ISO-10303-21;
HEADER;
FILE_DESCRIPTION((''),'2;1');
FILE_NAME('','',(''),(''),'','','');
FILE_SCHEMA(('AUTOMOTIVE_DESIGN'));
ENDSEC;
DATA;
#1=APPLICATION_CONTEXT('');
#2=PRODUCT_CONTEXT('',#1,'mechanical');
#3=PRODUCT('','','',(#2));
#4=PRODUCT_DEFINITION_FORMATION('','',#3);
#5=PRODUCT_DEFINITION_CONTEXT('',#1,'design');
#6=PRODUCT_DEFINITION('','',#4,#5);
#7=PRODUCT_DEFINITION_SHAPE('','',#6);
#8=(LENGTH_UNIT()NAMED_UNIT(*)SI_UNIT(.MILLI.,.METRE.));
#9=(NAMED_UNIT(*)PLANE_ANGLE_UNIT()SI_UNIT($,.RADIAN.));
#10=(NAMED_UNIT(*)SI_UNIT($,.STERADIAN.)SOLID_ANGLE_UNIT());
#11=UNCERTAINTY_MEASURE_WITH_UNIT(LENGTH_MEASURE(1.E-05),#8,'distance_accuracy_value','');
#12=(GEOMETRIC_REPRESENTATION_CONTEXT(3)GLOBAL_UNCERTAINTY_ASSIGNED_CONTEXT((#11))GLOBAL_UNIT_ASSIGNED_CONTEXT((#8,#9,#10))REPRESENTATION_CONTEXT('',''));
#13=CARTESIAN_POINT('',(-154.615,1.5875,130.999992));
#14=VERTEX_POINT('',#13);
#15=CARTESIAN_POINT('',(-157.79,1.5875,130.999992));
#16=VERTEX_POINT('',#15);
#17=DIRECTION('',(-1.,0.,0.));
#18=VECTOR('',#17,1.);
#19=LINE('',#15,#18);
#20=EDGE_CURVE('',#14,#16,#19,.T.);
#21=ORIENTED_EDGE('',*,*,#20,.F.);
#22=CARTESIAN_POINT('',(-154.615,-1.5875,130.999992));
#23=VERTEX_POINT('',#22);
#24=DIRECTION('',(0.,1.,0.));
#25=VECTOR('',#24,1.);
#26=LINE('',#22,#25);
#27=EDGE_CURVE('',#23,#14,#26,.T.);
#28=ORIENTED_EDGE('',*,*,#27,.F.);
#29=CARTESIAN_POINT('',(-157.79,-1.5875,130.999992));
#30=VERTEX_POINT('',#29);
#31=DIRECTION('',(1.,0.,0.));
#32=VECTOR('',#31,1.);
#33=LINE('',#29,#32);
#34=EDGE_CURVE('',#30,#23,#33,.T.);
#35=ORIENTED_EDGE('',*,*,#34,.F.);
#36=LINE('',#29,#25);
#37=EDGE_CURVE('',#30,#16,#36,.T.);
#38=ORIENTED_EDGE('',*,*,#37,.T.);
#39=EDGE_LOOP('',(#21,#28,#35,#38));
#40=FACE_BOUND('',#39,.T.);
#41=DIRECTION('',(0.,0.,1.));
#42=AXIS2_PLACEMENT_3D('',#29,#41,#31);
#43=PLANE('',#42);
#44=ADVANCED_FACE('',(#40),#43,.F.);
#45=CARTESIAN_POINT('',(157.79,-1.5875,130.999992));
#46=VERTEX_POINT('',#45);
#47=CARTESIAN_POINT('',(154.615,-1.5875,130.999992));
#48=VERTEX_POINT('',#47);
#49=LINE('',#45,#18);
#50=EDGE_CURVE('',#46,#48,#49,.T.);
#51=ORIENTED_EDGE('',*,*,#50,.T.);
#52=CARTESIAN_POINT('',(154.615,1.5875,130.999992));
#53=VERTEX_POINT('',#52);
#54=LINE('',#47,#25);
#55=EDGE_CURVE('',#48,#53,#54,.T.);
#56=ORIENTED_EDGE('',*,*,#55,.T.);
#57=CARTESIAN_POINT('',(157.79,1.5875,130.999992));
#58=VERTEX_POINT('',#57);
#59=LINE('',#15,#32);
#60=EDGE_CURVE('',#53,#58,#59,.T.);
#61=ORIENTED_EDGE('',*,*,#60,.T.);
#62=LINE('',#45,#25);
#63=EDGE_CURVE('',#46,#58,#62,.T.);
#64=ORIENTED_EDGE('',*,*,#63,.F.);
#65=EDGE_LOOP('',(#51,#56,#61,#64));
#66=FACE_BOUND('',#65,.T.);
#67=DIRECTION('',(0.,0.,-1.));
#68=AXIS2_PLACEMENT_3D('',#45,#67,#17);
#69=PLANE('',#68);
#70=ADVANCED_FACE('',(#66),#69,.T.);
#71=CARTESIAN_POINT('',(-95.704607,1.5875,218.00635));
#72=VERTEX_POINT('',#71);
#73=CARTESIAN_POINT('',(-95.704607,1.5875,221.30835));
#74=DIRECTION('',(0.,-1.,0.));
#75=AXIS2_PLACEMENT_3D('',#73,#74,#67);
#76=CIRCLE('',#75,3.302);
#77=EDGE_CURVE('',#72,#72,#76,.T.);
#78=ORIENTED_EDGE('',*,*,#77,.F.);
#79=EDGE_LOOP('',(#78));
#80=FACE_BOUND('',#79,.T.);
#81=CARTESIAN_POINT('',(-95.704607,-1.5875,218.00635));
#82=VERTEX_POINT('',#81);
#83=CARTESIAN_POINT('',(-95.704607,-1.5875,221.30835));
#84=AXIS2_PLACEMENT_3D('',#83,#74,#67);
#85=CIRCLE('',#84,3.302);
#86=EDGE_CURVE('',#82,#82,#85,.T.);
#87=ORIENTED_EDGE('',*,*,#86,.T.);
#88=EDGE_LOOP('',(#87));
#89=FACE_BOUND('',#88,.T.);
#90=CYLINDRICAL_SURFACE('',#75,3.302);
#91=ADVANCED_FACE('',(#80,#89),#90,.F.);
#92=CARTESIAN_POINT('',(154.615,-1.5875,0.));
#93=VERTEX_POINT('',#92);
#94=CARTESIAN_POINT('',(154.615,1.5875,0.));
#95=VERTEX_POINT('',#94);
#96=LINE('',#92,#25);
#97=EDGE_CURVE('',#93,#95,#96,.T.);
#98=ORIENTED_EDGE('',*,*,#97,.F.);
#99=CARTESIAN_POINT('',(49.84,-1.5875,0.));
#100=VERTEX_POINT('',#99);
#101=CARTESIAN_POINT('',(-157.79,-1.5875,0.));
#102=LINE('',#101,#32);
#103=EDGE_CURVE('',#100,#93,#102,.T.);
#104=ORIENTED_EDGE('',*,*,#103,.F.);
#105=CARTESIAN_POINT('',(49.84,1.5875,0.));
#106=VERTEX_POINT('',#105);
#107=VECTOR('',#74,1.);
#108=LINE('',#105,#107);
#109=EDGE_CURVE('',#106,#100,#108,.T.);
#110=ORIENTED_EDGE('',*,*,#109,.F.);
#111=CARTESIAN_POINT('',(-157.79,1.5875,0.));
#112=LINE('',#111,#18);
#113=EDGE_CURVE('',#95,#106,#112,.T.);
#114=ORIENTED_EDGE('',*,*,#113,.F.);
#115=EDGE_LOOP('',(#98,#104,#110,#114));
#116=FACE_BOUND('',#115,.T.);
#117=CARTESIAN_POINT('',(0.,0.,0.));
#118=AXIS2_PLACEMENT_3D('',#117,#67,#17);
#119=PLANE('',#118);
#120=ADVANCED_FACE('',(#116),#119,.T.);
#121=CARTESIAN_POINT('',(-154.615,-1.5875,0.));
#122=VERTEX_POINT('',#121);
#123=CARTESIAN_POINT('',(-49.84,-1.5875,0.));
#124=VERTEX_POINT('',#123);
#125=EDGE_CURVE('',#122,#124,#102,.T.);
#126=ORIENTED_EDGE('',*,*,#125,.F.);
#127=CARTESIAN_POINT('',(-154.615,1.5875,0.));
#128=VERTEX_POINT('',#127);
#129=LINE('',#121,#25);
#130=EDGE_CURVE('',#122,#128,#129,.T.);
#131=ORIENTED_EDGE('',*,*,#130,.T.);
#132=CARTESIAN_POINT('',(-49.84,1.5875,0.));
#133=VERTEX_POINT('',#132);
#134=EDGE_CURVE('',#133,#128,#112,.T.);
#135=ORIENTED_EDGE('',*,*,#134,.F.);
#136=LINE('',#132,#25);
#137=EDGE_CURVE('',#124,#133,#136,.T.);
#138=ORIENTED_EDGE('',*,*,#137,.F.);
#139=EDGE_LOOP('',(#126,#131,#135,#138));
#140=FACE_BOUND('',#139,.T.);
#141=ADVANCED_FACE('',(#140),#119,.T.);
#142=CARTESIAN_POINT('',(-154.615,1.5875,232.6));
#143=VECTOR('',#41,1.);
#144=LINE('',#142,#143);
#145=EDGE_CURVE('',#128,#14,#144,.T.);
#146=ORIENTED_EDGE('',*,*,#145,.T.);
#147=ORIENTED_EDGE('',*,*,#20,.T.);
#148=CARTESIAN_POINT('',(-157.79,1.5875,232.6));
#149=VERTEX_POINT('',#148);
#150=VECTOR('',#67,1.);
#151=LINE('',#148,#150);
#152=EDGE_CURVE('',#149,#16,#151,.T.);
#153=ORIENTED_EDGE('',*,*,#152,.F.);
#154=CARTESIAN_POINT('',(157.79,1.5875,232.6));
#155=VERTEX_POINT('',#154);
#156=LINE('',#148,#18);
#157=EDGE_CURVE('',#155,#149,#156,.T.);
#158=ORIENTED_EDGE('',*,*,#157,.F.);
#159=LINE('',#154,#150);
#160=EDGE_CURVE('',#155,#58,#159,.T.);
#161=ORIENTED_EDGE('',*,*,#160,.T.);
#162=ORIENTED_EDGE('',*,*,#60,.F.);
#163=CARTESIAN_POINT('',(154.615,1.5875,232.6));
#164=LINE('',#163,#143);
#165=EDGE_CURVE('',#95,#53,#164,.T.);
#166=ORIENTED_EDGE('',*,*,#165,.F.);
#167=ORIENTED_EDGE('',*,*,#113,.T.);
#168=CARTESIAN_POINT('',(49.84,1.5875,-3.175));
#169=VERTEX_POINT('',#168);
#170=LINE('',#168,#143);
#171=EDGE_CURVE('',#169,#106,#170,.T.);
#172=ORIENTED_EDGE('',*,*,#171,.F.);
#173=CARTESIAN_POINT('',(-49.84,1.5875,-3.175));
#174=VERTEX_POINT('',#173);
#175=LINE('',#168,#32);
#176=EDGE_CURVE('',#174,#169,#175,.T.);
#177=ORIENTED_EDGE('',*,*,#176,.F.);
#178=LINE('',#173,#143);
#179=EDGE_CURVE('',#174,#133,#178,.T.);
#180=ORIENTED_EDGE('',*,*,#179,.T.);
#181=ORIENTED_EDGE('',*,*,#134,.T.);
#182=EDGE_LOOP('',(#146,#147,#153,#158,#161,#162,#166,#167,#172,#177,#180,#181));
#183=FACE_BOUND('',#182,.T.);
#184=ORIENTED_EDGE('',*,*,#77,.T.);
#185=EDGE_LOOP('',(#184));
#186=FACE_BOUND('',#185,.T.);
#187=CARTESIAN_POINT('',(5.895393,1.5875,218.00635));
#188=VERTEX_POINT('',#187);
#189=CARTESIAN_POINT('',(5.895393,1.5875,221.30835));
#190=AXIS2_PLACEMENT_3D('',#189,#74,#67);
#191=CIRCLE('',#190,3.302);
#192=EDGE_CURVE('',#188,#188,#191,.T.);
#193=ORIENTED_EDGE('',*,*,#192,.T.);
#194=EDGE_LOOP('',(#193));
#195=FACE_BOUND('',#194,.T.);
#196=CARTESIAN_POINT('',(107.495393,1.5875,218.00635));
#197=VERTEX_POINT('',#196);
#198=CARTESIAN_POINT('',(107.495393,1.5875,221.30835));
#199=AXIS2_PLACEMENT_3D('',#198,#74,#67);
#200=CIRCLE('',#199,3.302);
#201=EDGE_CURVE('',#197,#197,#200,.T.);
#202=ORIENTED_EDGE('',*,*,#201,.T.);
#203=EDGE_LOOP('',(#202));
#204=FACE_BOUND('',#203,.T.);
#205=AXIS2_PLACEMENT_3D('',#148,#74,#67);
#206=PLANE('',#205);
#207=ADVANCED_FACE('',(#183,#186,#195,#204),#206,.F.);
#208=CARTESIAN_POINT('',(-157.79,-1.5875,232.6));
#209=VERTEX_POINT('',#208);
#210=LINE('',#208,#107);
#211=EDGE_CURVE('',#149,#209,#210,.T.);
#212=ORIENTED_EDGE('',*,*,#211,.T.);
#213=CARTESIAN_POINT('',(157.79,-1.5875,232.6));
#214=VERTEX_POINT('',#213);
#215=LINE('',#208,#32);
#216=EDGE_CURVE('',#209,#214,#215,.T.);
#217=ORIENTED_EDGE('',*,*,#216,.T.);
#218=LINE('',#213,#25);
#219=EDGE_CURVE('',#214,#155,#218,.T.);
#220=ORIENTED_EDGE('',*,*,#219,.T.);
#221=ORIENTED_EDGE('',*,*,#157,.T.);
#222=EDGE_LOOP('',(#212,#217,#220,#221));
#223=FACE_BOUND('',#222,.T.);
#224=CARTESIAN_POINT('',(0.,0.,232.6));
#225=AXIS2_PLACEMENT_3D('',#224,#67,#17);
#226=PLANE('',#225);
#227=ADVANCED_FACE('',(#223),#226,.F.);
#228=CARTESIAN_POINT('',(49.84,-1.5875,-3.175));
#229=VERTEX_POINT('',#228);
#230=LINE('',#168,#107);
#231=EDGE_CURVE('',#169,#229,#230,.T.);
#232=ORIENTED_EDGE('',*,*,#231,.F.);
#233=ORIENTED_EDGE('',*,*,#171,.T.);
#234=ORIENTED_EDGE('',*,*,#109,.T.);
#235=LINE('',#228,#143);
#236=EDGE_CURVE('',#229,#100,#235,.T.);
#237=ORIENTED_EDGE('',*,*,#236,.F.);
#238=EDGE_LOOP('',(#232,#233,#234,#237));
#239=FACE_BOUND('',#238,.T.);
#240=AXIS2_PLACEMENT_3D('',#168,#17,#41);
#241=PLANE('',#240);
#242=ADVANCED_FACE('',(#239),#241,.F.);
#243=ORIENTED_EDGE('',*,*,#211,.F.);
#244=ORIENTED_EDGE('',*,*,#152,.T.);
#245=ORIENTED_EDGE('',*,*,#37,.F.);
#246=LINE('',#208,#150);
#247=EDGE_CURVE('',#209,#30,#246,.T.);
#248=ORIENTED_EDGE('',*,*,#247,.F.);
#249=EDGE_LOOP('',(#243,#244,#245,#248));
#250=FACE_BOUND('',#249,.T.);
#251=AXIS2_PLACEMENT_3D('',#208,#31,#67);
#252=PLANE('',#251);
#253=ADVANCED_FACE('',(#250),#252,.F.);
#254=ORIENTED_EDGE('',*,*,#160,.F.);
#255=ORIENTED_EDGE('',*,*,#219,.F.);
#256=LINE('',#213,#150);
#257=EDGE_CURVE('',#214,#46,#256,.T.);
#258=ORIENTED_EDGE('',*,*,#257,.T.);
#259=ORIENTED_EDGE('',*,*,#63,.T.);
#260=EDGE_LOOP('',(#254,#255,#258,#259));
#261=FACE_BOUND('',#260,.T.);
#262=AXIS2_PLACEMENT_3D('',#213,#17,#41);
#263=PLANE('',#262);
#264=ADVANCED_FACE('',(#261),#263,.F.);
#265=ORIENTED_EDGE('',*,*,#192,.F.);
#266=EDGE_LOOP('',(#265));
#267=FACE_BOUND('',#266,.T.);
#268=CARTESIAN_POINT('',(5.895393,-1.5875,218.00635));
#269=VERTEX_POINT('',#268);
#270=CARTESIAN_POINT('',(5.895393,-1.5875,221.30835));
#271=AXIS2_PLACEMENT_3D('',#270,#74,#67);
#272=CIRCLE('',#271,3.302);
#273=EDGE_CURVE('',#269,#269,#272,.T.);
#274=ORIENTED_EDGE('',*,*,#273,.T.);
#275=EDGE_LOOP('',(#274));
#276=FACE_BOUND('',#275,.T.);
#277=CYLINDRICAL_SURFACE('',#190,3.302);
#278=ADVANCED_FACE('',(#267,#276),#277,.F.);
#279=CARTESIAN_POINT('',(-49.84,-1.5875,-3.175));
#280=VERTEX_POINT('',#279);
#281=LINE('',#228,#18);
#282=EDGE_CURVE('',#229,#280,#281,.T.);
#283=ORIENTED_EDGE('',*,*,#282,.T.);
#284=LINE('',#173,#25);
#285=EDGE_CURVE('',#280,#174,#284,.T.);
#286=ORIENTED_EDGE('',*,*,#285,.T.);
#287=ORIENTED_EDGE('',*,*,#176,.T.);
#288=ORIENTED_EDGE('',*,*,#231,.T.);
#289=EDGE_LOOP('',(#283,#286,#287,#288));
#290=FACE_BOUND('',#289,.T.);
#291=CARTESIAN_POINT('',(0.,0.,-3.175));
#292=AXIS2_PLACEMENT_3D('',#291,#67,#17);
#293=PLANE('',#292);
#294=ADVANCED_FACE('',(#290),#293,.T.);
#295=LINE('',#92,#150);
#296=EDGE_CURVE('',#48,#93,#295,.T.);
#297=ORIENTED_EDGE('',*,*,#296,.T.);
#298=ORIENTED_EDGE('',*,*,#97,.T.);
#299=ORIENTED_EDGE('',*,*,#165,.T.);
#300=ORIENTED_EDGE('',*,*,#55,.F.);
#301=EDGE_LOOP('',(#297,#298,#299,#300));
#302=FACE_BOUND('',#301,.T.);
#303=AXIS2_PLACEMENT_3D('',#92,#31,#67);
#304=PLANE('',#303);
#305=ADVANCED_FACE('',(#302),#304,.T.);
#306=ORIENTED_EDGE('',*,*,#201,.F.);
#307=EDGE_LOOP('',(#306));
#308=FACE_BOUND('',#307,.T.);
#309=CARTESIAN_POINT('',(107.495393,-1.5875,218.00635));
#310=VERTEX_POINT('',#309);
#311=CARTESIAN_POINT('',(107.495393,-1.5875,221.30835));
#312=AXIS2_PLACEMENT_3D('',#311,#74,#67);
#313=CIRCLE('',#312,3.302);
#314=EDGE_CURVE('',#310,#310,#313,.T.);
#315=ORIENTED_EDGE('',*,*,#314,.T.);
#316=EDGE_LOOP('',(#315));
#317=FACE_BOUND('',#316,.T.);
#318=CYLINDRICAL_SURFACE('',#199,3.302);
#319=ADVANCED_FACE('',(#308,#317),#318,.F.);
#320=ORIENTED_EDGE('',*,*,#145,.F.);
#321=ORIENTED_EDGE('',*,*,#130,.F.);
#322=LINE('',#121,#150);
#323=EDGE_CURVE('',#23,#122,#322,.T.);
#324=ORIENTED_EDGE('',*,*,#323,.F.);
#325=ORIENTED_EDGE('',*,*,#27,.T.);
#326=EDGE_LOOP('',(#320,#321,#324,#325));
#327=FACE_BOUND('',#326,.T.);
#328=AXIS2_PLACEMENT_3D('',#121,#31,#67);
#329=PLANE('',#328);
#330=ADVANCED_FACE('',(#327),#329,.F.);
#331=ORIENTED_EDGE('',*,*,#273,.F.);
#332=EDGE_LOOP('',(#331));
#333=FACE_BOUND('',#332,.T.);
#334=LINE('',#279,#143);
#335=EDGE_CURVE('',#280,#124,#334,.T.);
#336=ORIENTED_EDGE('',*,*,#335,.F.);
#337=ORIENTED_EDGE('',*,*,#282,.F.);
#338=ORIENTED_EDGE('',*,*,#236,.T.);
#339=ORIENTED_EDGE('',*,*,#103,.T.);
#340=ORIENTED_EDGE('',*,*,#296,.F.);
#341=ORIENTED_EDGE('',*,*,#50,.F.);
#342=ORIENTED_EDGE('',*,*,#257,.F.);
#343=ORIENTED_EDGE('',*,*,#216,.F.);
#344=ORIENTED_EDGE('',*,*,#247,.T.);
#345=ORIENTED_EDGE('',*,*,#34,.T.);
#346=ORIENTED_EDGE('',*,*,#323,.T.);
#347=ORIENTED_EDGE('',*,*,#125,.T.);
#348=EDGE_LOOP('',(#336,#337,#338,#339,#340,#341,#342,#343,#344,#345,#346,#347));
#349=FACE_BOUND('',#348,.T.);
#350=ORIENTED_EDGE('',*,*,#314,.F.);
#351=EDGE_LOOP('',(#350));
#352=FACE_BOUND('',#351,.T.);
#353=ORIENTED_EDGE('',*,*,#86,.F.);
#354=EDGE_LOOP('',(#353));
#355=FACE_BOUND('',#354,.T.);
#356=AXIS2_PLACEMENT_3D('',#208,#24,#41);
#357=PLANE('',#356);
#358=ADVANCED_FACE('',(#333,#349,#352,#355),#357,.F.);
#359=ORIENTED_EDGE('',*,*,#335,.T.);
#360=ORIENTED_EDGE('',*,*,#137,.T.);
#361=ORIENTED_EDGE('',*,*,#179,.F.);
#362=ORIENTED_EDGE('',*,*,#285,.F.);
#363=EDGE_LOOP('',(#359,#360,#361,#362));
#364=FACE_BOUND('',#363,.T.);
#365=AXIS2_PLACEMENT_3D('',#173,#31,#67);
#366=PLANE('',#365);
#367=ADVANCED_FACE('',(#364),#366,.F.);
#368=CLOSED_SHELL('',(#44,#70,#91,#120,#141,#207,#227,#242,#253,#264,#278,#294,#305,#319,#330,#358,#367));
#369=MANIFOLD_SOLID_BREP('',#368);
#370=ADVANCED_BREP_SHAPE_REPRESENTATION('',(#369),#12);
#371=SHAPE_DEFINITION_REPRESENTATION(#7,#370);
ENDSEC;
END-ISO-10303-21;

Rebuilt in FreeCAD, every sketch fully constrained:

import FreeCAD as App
import Part
import Sketcher
Q = App.Units.Quantity


def add_polygon(sketch, points):
    """Adds a closed chain of lines whose ends are joined by coincident constraints."""
    first, n = sketch.GeometryCount, len(points)
    for a, b in zip(points, points[1:] + points[:1]):
        sketch.addGeometry(Part.LineSegment(App.Vector(*a, 0), App.Vector(*b, 0)), False)
    for i in range(n):
        sketch.addConstraint(Sketcher.Constraint("Coincident", first + i, 2, first + (i + 1) % n, 1))

doc = App.newDocument("Part")
body = doc.addObject("PartDesign::Body", "Body")

sketch1 = doc.addObject("Sketcher::SketchObject", "Sketch")
body.addObject(sketch1)
sketch1.AttachmentSupport = (doc.XY_Plane, [""])
sketch1.MapMode = "FlatFace"
add_polygon(sketch1, [(-157.8, 1.6), (-157.8, -1.6), (157.8, -1.6), (157.8, 1.6)])
sketch1.addConstraint(Sketcher.Constraint("Vertical", 0))
sketch1.addConstraint(Sketcher.Constraint("Horizontal", 1))
sketch1.addConstraint(Sketcher.Constraint("Vertical", 2))
sketch1.addConstraint(Sketcher.Constraint("Horizontal", 3))
sketch1.addConstraint(Sketcher.Constraint("Symmetric", 0, 2, 2, 2, -1, 1))
sketch1.addConstraint(Sketcher.Constraint("DistanceY", 0, 2, 0, 1, Q("0.125 in")))
sketch1.addConstraint(Sketcher.Constraint("DistanceX", 1, 1, 1, 2, 315.58))
pad1 = doc.addObject("PartDesign::Pad", "Pad")
body.addObject(pad1)
pad1.Profile = sketch1
pad1.Length = 232.6

sketch2 = doc.addObject("Sketcher::SketchObject", "Sketch001")
body.addObject(sketch2)
sketch2.AttachmentSupport = (doc.XZ_Plane, [""])
sketch2.MapMode = "FlatFace"
sketch2.AttachmentOffset = App.Placement(App.Vector(0, 0, -0.0625 * 25.4), App.Rotation())
add_polygon(sketch2, [(-157.8, 0), (-157.8, 131), (-154.6, 131), (-154.6, 0)])
sketch2.addConstraint(Sketcher.Constraint("Vertical", 0))
sketch2.addConstraint(Sketcher.Constraint("Horizontal", 1))
sketch2.addConstraint(Sketcher.Constraint("Vertical", 2))
sketch2.addConstraint(Sketcher.Constraint("Horizontal", 3))
sketch2.addConstraint(Sketcher.Constraint("PointOnObject", 2, 2, -1))
sketch2.addConstraint(Sketcher.Constraint("DistanceX", 1, 1, 1, 2, Q("0.125 in")))
sketch2.addConstraint(Sketcher.Constraint("DistanceY", 0, 1, 0, 2, 130.999992))
sketch2.addConstraint(Sketcher.Constraint("DistanceX", 0, 2, -1, 1, 157.79))
pocket1 = doc.addObject("PartDesign::Pocket", "Pocket")
body.addObject(pocket1)
pocket1.Profile = sketch2
pocket1.Length = 564.176217
pocket1.Midplane = True
doc.recompute()

mirrored = doc.addObject("PartDesign::Mirrored", "Mirrored")
body.addObject(mirrored)
mirrored.Originals = [pocket1]
mirrored.MirrorPlane = (doc.YZ_Plane, [""])
body.Tip = mirrored

sketch3 = doc.addObject("Sketcher::SketchObject", "Sketch002")
body.addObject(sketch3)
sketch3.AttachmentSupport = (doc.XZ_Plane, [""])
sketch3.MapMode = "FlatFace"
sketch3.AttachmentOffset = App.Placement(App.Vector(0, 0, 0.0625 * 25.4), App.Rotation())
sketch3.addGeometry(Part.Circle(App.Vector(107.5, 221.3, 0), App.Vector(0, 0, 1), 3.3), False)
sketch3.addConstraint(Sketcher.Constraint("Diameter", 0, Q("0.26 in")))
sketch3.addConstraint(Sketcher.Constraint("DistanceY", -1, 1, 0, 3, 221.30835))
sketch3.addConstraint(Sketcher.Constraint("DistanceX", -1, 1, 0, 3, 107.495393))
pocket2 = doc.addObject("PartDesign::Pocket", "Pocket001")
body.addObject(pocket2)
pocket2.Profile = sketch3
pocket2.Type = "ThroughAll"
doc.recompute()

linearpattern = doc.addObject("PartDesign::LinearPattern", "LinearPattern")
body.addObject(linearpattern)
linearpattern.Originals = [pocket2]
linearpattern.Direction = (doc.X_Axis, [""])
linearpattern.Mode = "offset"
linearpattern.Offset = Q("4 in")
linearpattern.Occurrences = 3
linearpattern.Reversed = True
body.Tip = linearpattern

sketch4 = doc.addObject("Sketcher::SketchObject", "Sketch003")
body.addObject(sketch4)
sketch4.AttachmentSupport = (doc.XY_Plane, [""])
sketch4.MapMode = "FlatFace"
add_polygon(sketch4, [(49.8, 1.6), (49.8, -1.6), (-49.8, -1.6), (-49.8, 1.6)])
sketch4.addConstraint(Sketcher.Constraint("Vertical", 0))
sketch4.addConstraint(Sketcher.Constraint("Horizontal", 1))
sketch4.addConstraint(Sketcher.Constraint("Vertical", 2))
sketch4.addConstraint(Sketcher.Constraint("Horizontal", 3))
sketch4.addConstraint(Sketcher.Constraint("Symmetric", 0, 2, 2, 2, -1, 1))
sketch4.addConstraint(Sketcher.Constraint("DistanceY", 0, 2, 0, 1, Q("0.125 in")))
sketch4.addConstraint(Sketcher.Constraint("DistanceX", 1, 2, 1, 1, 99.68))
pad2 = doc.addObject("PartDesign::Pad", "Pad001")
body.addObject(pad2)
pad2.Profile = sketch4
pad2.Length = Q("0.125 in")
pad2.Reversed = True

doc.recompute()
